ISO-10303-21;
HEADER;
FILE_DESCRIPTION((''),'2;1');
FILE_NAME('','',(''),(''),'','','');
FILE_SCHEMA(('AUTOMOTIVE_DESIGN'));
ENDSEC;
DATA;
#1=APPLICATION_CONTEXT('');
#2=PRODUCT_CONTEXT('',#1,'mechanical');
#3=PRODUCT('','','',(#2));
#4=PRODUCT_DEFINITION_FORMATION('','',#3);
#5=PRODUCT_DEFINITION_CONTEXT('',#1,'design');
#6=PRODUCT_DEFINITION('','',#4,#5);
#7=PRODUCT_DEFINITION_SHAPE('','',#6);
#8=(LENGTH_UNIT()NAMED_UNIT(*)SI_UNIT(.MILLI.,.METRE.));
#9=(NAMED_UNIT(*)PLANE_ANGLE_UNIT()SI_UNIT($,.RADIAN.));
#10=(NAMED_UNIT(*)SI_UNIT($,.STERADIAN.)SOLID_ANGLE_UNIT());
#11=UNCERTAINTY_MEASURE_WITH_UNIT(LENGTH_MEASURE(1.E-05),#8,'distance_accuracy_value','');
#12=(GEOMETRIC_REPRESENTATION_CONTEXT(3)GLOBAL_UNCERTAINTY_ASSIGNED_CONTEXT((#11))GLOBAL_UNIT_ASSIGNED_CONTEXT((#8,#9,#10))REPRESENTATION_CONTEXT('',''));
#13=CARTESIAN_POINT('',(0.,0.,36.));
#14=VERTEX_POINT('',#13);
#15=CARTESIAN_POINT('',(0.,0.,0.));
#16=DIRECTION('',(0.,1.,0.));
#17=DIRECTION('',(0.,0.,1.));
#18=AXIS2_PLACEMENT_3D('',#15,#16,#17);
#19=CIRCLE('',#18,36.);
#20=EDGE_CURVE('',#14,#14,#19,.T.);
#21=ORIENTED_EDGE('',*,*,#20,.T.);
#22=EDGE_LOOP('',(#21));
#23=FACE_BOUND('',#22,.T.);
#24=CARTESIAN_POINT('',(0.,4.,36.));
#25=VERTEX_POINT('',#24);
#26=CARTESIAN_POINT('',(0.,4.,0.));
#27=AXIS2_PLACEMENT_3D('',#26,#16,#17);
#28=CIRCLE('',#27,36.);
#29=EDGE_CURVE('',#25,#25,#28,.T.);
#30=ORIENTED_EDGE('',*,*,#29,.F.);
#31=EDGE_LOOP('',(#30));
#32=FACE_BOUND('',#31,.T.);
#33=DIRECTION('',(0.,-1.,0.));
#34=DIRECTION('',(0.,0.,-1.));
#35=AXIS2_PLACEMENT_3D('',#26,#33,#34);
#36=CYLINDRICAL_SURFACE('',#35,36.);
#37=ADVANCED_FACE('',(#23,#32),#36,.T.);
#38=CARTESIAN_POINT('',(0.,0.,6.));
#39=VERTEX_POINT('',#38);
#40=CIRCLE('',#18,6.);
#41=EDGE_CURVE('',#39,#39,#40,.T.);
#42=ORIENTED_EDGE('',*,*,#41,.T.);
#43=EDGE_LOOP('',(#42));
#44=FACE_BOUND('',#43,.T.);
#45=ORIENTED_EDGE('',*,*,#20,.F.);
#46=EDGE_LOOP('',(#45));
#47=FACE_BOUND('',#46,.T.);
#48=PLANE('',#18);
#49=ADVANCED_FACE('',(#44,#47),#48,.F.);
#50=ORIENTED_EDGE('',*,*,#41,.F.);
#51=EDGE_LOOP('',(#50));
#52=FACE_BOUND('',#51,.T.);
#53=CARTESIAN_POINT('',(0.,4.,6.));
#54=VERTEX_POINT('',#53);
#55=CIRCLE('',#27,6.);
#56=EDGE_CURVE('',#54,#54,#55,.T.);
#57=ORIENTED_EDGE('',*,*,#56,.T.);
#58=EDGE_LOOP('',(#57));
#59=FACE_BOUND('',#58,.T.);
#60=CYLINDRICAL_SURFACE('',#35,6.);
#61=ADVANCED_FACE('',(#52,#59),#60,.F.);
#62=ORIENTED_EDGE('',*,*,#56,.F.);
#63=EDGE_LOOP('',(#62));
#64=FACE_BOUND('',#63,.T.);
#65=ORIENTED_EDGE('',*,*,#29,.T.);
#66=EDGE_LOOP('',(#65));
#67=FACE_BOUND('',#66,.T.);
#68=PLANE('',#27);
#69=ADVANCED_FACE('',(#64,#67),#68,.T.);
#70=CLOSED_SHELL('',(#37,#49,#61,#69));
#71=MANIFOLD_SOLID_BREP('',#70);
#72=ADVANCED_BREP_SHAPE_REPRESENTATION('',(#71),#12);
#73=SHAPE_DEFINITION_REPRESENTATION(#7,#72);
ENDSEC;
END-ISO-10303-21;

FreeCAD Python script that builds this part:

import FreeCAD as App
import Part
import Sketcher
Q = App.Units.Quantity

doc = App.newDocument("Part")
body = doc.addObject("PartDesign::Body", "Body")

# Sketch on XZ plane
sketch1 = doc.addObject("Sketcher::SketchObject", "Sketch")
body.addObject(sketch1)
sketch1.AttachmentSupport = (doc.XZ_Plane, [""])
sketch1.MapMode = "FlatFace"
sketch1.addGeometry([
    Part.Circle(App.Vector(0, 0, 0), App.Vector(0, 0, 1), 36),
    Part.Circle(App.Vector(0, 0, 0), App.Vector(0, 0, 1), 6),
], False)
sketch1.addConstraint([
    Sketcher.Constraint("Coincident", 0, 3, -1, 1),
    Sketcher.Constraint("Coincident", 1, 3, -1, 1),
    Sketcher.Constraint("Diameter", 0, Q("72 mm")),
    Sketcher.Constraint("Diameter", 1, Q("12 mm")),
])
pad1 = doc.addObject("PartDesign::Pad", "Pad")
body.addObject(pad1)
pad1.Profile = sketch1
pad1.Length = 4
pad1.Reversed = True

doc.recompute()
